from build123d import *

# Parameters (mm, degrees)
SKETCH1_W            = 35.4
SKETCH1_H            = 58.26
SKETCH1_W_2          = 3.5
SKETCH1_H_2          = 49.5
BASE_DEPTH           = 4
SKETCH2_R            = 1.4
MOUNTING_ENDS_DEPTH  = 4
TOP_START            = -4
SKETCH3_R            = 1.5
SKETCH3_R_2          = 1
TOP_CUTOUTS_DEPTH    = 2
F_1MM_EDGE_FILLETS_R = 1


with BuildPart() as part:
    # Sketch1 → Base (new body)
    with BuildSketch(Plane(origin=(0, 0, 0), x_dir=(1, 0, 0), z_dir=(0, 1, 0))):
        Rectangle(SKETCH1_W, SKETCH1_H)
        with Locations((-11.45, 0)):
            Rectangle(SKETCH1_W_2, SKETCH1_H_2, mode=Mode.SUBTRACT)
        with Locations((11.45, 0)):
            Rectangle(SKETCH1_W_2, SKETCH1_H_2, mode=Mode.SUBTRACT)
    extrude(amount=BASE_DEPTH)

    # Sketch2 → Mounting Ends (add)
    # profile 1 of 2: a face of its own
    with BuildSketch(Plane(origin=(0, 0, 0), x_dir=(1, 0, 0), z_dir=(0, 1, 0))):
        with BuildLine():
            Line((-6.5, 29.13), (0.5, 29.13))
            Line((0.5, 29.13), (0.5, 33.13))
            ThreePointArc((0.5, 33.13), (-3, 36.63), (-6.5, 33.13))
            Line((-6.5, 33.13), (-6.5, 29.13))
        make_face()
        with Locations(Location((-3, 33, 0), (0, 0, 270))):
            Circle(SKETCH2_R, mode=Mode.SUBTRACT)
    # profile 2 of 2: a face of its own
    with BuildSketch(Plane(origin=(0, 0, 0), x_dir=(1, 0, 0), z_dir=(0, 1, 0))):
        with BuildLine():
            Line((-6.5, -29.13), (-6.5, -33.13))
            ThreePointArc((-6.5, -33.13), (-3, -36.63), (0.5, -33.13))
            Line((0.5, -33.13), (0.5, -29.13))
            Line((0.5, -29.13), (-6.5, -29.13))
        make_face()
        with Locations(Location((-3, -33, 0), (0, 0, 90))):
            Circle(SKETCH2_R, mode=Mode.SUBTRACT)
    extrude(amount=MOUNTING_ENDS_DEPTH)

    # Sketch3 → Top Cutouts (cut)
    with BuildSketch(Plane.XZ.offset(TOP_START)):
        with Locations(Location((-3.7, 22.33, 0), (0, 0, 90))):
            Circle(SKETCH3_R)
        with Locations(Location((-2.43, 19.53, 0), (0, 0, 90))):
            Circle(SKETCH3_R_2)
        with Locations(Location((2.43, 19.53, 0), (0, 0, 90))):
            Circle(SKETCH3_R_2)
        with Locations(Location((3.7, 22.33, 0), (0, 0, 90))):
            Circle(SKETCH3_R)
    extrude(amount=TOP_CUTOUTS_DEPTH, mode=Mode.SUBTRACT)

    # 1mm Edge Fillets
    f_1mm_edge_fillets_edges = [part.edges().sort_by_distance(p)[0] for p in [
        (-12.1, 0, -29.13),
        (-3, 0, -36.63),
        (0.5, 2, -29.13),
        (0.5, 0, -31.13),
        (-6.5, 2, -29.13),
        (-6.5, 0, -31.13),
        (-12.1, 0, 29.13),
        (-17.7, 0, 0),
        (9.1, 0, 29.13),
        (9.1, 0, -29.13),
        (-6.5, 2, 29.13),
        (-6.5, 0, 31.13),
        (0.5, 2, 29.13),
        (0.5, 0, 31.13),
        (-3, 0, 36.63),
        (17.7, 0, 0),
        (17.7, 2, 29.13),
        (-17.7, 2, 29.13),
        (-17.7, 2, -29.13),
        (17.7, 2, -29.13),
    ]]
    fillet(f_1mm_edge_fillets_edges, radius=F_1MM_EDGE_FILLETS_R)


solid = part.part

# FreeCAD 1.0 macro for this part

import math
import FreeCAD as App
import Part
import Sketcher
from FreeCAD import Vector


def edges_at(feature, points):
    """Names of the edges that pass closest to the given points."""
    edges = feature.Shape.Edges
    near = lambda p: min(range(len(edges)), key=lambda i: edges[i].distToShape(Part.Vertex(*p))[0])
    return sorted({f"Edge{near(p) + 1}" for p in points})


def add_polygon(sketch, points):
    """Adds a closed chain of lines whose ends are joined by coincident constraints."""
    first, n = sketch.GeometryCount, len(points)
    for a, b in zip(points, points[1:] + points[:1]):
        sketch.addGeometry(Part.LineSegment(App.Vector(*a, 0), App.Vector(*b, 0)), False)
    for i in range(n):
        sketch.addConstraint(Sketcher.Constraint("Coincident", first + i, 2, first + (i + 1) % n, 1))

doc = App.newDocument("Part")
body = doc.addObject("PartDesign::Body", "Body")

sketch1 = body.newObject("Sketcher::SketchObject", "Sketch")
sketch1.AttachmentSupport = (doc.getObject("XZ_Plane"), [""])
sketch1.MapMode = "FlatFace"
add_polygon(sketch1, [(-17.7, -29.1), (-17.7, 29.1), (17.7, 29.1), (17.7, -29.1)])
add_polygon(sketch1, [(-9.7, 24.8), (-13.2, 24.8), (-13.2, -24.8), (-9.7, -24.8)])
add_polygon(sketch1, [(13.2, 24.8), (9.7, 24.8), (9.7, -24.8), (13.2, -24.8)])
sketch1.addConstraint(Sketcher.Constraint("Vertical", 0))
sketch1.addConstraint(Sketcher.Constraint("Horizontal", 1))
sketch1.addConstraint(Sketcher.Constraint("Vertical", 2))
sketch1.addConstraint(Sketcher.Constraint("Horizontal", 3))
sketch1.addConstraint(Sketcher.Constraint("Horizontal", 4))
sketch1.addConstraint(Sketcher.Constraint("Vertical", 5))
sketch1.addConstraint(Sketcher.Constraint("Horizontal", 6))
sketch1.addConstraint(Sketcher.Constraint("Vertical", 7))
sketch1.addConstraint(Sketcher.Constraint("Horizontal", 8))
sketch1.addConstraint(Sketcher.Constraint("Vertical", 9))
sketch1.addConstraint(Sketcher.Constraint("Horizontal", 10))
sketch1.addConstraint(Sketcher.Constraint("Vertical", 11))
sketch1.addConstraint(Sketcher.Constraint("Symmetric", 0, 2, 2, 2, -1, 1))
sketch1.addConstraint(Sketcher.Constraint("Symmetric", 6, 2, 8, 2, -1, 1))
sketch1.addConstraint(Sketcher.Constraint("Symmetric", 4, 2, 10, 2, -1, 1))
sketch1.addConstraint(Sketcher.Constraint("Horizontal", 7, 2, 8, 2))
sketch1.addConstraint(Sketcher.Constraint("DistanceX", 1, 1, 1, 2, 35.4))
sketch1.addConstraint(Sketcher.Constraint("DistanceX", 4, 2, 4, 1, 3.5))
sketch1.addConstraint(Sketcher.Constraint("DistanceY", 5, 2, 5, 1, 49.5))
sketch1.addConstraint(Sketcher.Constraint("DistanceX", 3, 2, 6, 2, 8.0))
sketch1.addConstraint(Sketcher.Constraint("DistanceY", 0, 1, 0, 2, 58.26))
pad1 = body.newObject("PartDesign::Pad", "Pad")
pad1.Profile = sketch1
pad1.Length = 4
pad1.Reversed = True

sketch2 = body.newObject("Sketcher::SketchObject", "Sketch001")
sketch2.AttachmentSupport = (doc.getObject("XZ_Plane"), [""])
sketch2.MapMode = "FlatFace"
sketch2.addGeometry(Part.LineSegment(Vector(-6.5, -29.1, 0), Vector(0.5, -29.1, 0)), False)
sketch2.addGeometry(Part.LineSegment(Vector(0.5, -29.1, 0), Vector(0.5, -33.1, 0)), False)
sketch2.addGeometry(Part.ArcOfCircle(Part.Circle(Vector(-3, -33.1, 0), Vector(0, 0, 1), 3.5), math.radians(180), math.radians(360)), False)
sketch2.addGeometry(Part.LineSegment(Vector(-6.5, -33.1, 0), Vector(-6.5, -29.1, 0)), False)
sketch2.addGeometry(Part.Circle(Vector(-3, -33, 0), Vector(0, 0, 1), 1.4), False)
sketch2.addGeometry(Part.LineSegment(Vector(-6.5, 29.1, 0), Vector(-6.5, 33.1, 0)), False)
sketch2.addGeometry(Part.ArcOfCircle(Part.Circle(Vector(-3, 33.1, 0), Vector(0, 0, 1), 3.5), math.radians(0), math.radians(180)), False)
sketch2.addGeometry(Part.LineSegment(Vector(0.5, 33.1, 0), Vector(0.5, 29.1, 0)), False)
sketch2.addGeometry(Part.LineSegment(Vector(0.5, 29.1, 0), Vector(-6.5, 29.1, 0)), False)
sketch2.addGeometry(Part.Circle(Vector(-3, 33, 0), Vector(0, 0, 1), 1.4), False)
sketch2.addConstraint(Sketcher.Constraint("Coincident", 0, 2, 1, 1))
sketch2.addConstraint(Sketcher.Constraint("Tangent", 1, 2, 2, 2))
sketch2.addConstraint(Sketcher.Constraint("Tangent", 2, 1, 3, 1))
sketch2.addConstraint(Sketcher.Constraint("Coincident", 3, 2, 0, 1))
sketch2.addConstraint(Sketcher.Constraint("Tangent", 5, 2, 6, 2))
sketch2.addConstraint(Sketcher.Constraint("Tangent", 6, 1, 7, 1))
sketch2.addConstraint(Sketcher.Constraint("Coincident", 7, 2, 8, 1))
sketch2.addConstraint(Sketcher.Constraint("Coincident", 8, 2, 5, 1))
sketch2.addConstraint(Sketcher.Constraint("Horizontal", 0))
sketch2.addConstraint(Sketcher.Constraint("Vertical", 1))
sketch2.addConstraint(Sketcher.Constraint("Vertical", 3))
sketch2.addConstraint(Sketcher.Constraint("Vertical", 5))
sketch2.addConstraint(Sketcher.Constraint("Vertical", 7))
sketch2.addConstraint(Sketcher.Constraint("Horizontal", 8))
sketch2.addConstraint(Sketcher.Constraint("Equal", 2, 6))
sketch2.addConstraint(Sketcher.Constraint("Equal", 4, 9))
sketch2.addConstraint(Sketcher.Constraint("Symmetric", 2, 3, 6, 3, -1))
sketch2.addConstraint(Sketcher.Constraint("Symmetric", 4, 3, 9, 3, -1))
sketch2.addConstraint(Sketcher.Constraint("Vertical", 2, 3, 4, 3))
sketch2.addConstraint(Sketcher.Constraint("Equal", 3, 5))
sketch2.addConstraint(Sketcher.Constraint("Diameter", 4, 2.8))
sketch2.addConstraint(Sketcher.Constraint("Radius", 2, 3.5))
sketch2.addConstraint(Sketcher.Constraint("DistanceY", 1, 2, 1, 1, 4.0))
sketch2.addConstraint(Sketcher.Constraint("DistanceX", 2, 3, -1, 1, 3.0))
sketch2.addConstraint(Sketcher.Constraint("DistanceY", 4, 3, -1, 1, 33.0))
sketch2.addConstraint(Sketcher.Constraint("DistanceY", 2, 3, -1, 1, 33.13))
pad2 = body.newObject("PartDesign::Pad", "Pad001")
pad2.Profile = sketch2
pad2.Length = 4
pad2.Reversed = True

sketch3 = body.newObject("Sketcher::SketchObject", "Sketch002")
sketch3.AttachmentSupport = (doc.getObject("XZ_Plane"), [""])
sketch3.MapMode = "FlatFace"
sketch3.AttachmentOffset = App.Placement(Vector(0, 0, -4), App.Rotation())
sketch3.addGeometry(Part.Circle(Vector(-3.7, 22.3, 0), Vector(0, 0, 1), 1.5), False)
sketch3.addGeometry(Part.Circle(Vector(-2.4, 19.5, 0), Vector(0, 0, 1), 1), False)
sketch3.addGeometry(Part.Circle(Vector(2.4, 19.5, 0), Vector(0, 0, 1), 1), False)
sketch3.addGeometry(Part.Circle(Vector(3.7, 22.3, 0), Vector(0, 0, 1), 1.5), False)
sketch3.addConstraint(Sketcher.Constraint("Equal", 1, 2))
sketch3.addConstraint(Sketcher.Constraint("Equal", 0, 3))
sketch3.addConstraint(Sketcher.Constraint("Symmetric", 1, 3, 2, 3, -2))
sketch3.addConstraint(Sketcher.Constraint("Symmetric", 0, 3, 3, 3, -2))
sketch3.addConstraint(Sketcher.Constraint("Diameter", 0, 3.0))
sketch3.addConstraint(Sketcher.Constraint("Diameter", 1, 2.0))
sketch3.addConstraint(Sketcher.Constraint("DistanceX", 0, 3, -1, 1, 3.7))
sketch3.addConstraint(Sketcher.Constraint("DistanceY", 1, 3, 0, 3, 2.8))
sketch3.addConstraint(Sketcher.Constraint("DistanceY", -1, 1, 0, 3, 22.33))
sketch3.addConstraint(Sketcher.Constraint("DistanceX", 1, 3, -1, 1, 2.43))
pocket1 = body.newObject("PartDesign::Pocket", "Pocket")
pocket1.Profile = sketch3
pocket1.Length = 2
pocket1.Reversed = True
doc.recompute()

fillet = body.newObject("PartDesign::Fillet", "Fillet")
fillet.Base = (pocket1, edges_at(pocket1, [
    (-12.1, 0, -29.13),
    (-3, 0, -36.63),
    (0.5, 2, -29.13),
    (0.5, 0, -31.13),
    (-6.5, 2, -29.13),
    (-6.5, 0, -31.13),
    (-12.1, 0, 29.13),
    (-17.7, 0, 0),
    (9.1, 0, 29.13),
    (9.1, 0, -29.13),
    (-6.5, 2, 29.13),
    (-6.5, 0, 31.13),
    (0.5, 2, 29.13),
    (0.5, 0, 31.13),
    (-3, 0, 36.63),
    (17.7, 0, 0),
    (17.7, 2, 29.13),
    (-17.7, 2, 29.13),
    (-17.7, 2, -29.13),
    (17.7, 2, -29.13),
]))
fillet.Radius = 1

doc.recompute()
